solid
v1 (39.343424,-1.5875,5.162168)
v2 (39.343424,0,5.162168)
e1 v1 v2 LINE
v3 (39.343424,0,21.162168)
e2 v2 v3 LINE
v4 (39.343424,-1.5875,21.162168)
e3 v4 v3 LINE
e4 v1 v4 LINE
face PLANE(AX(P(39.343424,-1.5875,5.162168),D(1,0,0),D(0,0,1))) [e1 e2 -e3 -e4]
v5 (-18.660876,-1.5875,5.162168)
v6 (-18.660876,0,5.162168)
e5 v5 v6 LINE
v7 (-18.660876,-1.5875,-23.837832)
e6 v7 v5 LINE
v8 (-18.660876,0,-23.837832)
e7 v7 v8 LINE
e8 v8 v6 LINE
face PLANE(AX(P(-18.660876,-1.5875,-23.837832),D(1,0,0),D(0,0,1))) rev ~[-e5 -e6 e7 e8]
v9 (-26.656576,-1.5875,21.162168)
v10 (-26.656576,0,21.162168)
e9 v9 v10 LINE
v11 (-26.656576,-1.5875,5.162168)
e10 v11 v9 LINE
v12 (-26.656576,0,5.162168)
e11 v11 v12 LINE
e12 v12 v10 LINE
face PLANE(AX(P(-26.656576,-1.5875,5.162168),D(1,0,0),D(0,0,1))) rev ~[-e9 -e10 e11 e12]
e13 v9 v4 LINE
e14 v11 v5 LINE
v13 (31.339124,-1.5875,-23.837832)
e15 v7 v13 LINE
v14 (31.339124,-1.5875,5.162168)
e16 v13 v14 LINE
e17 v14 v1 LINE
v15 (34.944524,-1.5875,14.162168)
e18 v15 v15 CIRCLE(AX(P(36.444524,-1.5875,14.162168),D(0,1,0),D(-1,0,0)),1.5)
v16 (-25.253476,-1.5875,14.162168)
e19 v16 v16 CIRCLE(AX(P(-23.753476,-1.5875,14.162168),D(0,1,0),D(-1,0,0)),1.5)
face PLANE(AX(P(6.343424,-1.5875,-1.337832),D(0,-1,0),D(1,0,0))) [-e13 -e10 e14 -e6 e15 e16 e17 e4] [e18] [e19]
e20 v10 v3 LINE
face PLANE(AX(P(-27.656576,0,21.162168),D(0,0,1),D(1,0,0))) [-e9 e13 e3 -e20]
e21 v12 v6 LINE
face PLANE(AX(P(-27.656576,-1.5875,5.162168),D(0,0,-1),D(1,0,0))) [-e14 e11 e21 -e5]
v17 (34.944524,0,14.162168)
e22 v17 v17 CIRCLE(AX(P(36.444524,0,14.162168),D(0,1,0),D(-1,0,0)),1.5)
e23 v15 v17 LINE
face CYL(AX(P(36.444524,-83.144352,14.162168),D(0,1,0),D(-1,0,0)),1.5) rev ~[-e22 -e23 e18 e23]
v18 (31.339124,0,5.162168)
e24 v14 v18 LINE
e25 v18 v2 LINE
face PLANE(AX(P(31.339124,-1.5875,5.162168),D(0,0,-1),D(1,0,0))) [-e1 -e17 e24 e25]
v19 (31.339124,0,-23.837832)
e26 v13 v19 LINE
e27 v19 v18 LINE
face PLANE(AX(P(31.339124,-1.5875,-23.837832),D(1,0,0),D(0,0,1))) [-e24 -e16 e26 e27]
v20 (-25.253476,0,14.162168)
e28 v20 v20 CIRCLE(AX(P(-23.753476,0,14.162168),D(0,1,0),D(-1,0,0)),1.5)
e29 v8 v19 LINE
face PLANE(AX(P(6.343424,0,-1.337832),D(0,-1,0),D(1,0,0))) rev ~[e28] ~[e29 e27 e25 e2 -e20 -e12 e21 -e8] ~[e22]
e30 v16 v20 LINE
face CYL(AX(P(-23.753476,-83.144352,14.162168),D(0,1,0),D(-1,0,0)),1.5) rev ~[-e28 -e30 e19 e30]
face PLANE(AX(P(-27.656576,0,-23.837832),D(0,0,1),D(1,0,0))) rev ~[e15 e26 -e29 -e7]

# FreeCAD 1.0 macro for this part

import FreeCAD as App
import Part
import Sketcher

V = App.Vector
Q = App.Units.Quantity


def add_polygon(sketch, points):
    """Adds a closed chain of lines whose ends are joined by coincident constraints."""
    first, n = sketch.GeometryCount, len(points)
    for a, b in zip(points, points[1:] + points[:1]):
        sketch.addGeometry(Part.LineSegment(App.Vector(*a, 0), App.Vector(*b, 0)), False)
    for i in range(n):
        sketch.addConstraint(Sketcher.Constraint("Coincident", first + i, 2, first + (i + 1) % n, 1))

doc = App.newDocument("Part")
body = doc.addObject("PartDesign::Body", "Body")

# Sketch on XZ plane
sketch1 = body.newObject("Sketcher::SketchObject", "Sketch")
sketch1.AttachmentSupport = (doc.getObject("XZ_Plane"), [""])
sketch1.MapMode = "FlatFace"
add_polygon(sketch1, [(-28, 21), (-28, -24), (40, -24), (40, 21)])  # lines 0-3
sketch1.addConstraint(Sketcher.Constraint("Vertical", 0))
sketch1.addConstraint(Sketcher.Constraint("Horizontal", 1))
sketch1.addConstraint(Sketcher.Constraint("Vertical", 2))
sketch1.addConstraint(Sketcher.Constraint("Horizontal", 3))
sketch1.addConstraint(Sketcher.Constraint("DistanceX", 1, 1, 1, 2, Q("68 mm")))
sketch1.addConstraint(Sketcher.Constraint("DistanceY", 0, 2, 0, 1, Q("45 mm")))
sketch1.addConstraint(Sketcher.Constraint("DistanceY", 0, 2, -1, 1, Q("23.837832 mm")))
sketch1.addConstraint(Sketcher.Constraint("DistanceX", 0, 2, -1, 1, Q("27.656576 mm")))
pad1 = body.newObject("PartDesign::Pad", "Pad")
pad1.Profile = sketch1
pad1.Length = 1.5875

# Sketch on XZ plane
sketch2 = body.newObject("Sketcher::SketchObject", "Sketch001")
sketch2.AttachmentSupport = (doc.getObject("XZ_Plane"), [""])
sketch2.MapMode = "FlatFace"
sketch2.AttachmentOffset = App.Placement(V(0, 0, 1.5875), App.Rotation())
add_polygon(sketch2, [(-28, 5), (-28, -24), (-19, -24), (-19, 5)])  # lines 0-3
add_polygon(sketch2, [(31, 5), (31, -24), (40, -24), (40, 5)])  # lines 4-7
sketch2.addConstraint(Sketcher.Constraint("Vertical", 0))
sketch2.addConstraint(Sketcher.Constraint("Horizontal", 1))
sketch2.addConstraint(Sketcher.Constraint("Vertical", 2))
sketch2.addConstraint(Sketcher.Constraint("Horizontal", 3))
sketch2.addConstraint(Sketcher.Constraint("Vertical", 4))
sketch2.addConstraint(Sketcher.Constraint("Horizontal", 5))
sketch2.addConstraint(Sketcher.Constraint("Vertical", 6))
sketch2.addConstraint(Sketcher.Constraint("Horizontal", 7))
sketch2.addConstraint(Sketcher.Constraint("Horizontal", 1, 2, 4, 2))
sketch2.addConstraint(Sketcher.Constraint("Horizontal", 3, 2, 6, 2))
sketch2.addConstraint(Sketcher.Constraint("DistanceY", 0, 2, 0, 1, Q("29 mm")))
sketch2.addConstraint(Sketcher.Constraint("DistanceX", 1, 2, 4, 2, Q("50 mm")))
sketch2.addConstraint(Sketcher.Constraint("DistanceX", 0, 2, 5, 2, Q("68 mm")))
sketch2.addConstraint(Sketcher.Constraint("DistanceX", 1, 1, 1, 2, Q("8.9957 mm")))
sketch2.addConstraint(Sketcher.Constraint("DistanceY", 0, 2, -1, 1, Q("23.837832 mm")))
sketch2.addConstraint(Sketcher.Constraint("DistanceX", 0, 2, -1, 1, Q("27.656576 mm")))
pocket1 = body.newObject("PartDesign::Pocket", "Pocket")
pocket1.Profile = sketch2
pocket1.Length = 25.4

# Sketch on XZ plane
sketch3 = body.newObject("Sketcher::SketchObject", "Sketch002")
sketch3.AttachmentSupport = (doc.getObject("XZ_Plane"), [""])
sketch3.MapMode = "FlatFace"
sketch3.AttachmentOffset = App.Placement(V(0, 0, 1.5875), App.Rotation())
sketch3.addGeometry(Part.Circle(V(-23.8, 14.2, 0), V(0, 0, 1), 1.5), False)
sketch3.addGeometry(Part.Circle(V(36.4, 14.2, 0), V(0, 0, 1), 1.5), False)
sketch3.addConstraint(Sketcher.Constraint("Equal", 0, 1))
sketch3.addConstraint(Sketcher.Constraint("Horizontal", 0, 3, 1, 3))
sketch3.addConstraint(Sketcher.Constraint("Diameter", 0, Q("3 mm")))
sketch3.addConstraint(Sketcher.Constraint("DistanceX", 0, 3, 1, 3, Q("60.198 mm")))
sketch3.addConstraint(Sketcher.Constraint("DistanceX", 0, 3, -1, 1, Q("23.753476 mm")))
sketch3.addConstraint(Sketcher.Constraint("DistanceY", -1, 1, 0, 3, Q("14.162168 mm")))
doc.recompute()
hole = body.newObject("PartDesign::Hole", "Hole")
hole.Profile = sketch3
hole.ThreadType = "None"
hole.Diameter = 3
hole.DepthType = "ThroughAll"

# Sketch on XZ plane
sketch4 = body.newObject("Sketcher::SketchObject", "Sketch003")
sketch4.AttachmentSupport = (doc.getObject("XZ_Plane"), [""])
sketch4.MapMode = "FlatFace"
sketch4.AttachmentOffset = App.Placement(V(0, 0, 1.5875), App.Rotation())
add_polygon(sketch4, [(-27.7, 21.2), (-27.7, 5.2), (-26.7, 5.2), (-26.7, 21.2)])  # lines 0-3
add_polygon(sketch4, [(39.3, 21.2), (39.3, 5.2), (40.3, 5.2), (40.3, 21.2)])  # lines 4-7
sketch4.addConstraint(Sketcher.Constraint("Vertical", 0))
sketch4.addConstraint(Sketcher.Constraint("Horizontal", 1))
sketch4.addConstraint(Sketcher.Constraint("Vertical", 2))
sketch4.addConstraint(Sketcher.Constraint("Horizontal", 3))
sketch4.addConstraint(Sketcher.Constraint("Vertical", 4))
sketch4.addConstraint(Sketcher.Constraint("Horizontal", 5))
sketch4.addConstraint(Sketcher.Constraint("Vertical", 6))
sketch4.addConstraint(Sketcher.Constraint("Horizontal", 7))
sketch4.addConstraint(Sketcher.Constraint("Horizontal", 1, 2, 4, 2))
sketch4.addConstraint(Sketcher.Constraint("Horizontal", 3, 2, 6, 2))
sketch4.addConstraint(Sketcher.Constraint("Equal", 3, 5))
sketch4.addConstraint(Sketcher.Constraint("DistanceX", 1, 1, 1, 2, Q("1 mm")))
sketch4.addConstraint(Sketcher.Constraint("DistanceY", 0, 2, 0, 1, Q("16 mm")))
sketch4.addConstraint(Sketcher.Constraint("DistanceX", 1, 2, 4, 2, Q("66 mm")))
sketch4.addConstraint(Sketcher.Constraint("DistanceY", -1, 1, 0, 2, Q("5.162168 mm")))
sketch4.addConstraint(Sketcher.Constraint("DistanceX", 0, 2, -1, 1, Q("27.656576 mm")))
pocket2 = body.newObject("PartDesign::Pocket", "Pocket001")
pocket2.Profile = sketch4
pocket2.Length = 25.4

doc.recompute()
